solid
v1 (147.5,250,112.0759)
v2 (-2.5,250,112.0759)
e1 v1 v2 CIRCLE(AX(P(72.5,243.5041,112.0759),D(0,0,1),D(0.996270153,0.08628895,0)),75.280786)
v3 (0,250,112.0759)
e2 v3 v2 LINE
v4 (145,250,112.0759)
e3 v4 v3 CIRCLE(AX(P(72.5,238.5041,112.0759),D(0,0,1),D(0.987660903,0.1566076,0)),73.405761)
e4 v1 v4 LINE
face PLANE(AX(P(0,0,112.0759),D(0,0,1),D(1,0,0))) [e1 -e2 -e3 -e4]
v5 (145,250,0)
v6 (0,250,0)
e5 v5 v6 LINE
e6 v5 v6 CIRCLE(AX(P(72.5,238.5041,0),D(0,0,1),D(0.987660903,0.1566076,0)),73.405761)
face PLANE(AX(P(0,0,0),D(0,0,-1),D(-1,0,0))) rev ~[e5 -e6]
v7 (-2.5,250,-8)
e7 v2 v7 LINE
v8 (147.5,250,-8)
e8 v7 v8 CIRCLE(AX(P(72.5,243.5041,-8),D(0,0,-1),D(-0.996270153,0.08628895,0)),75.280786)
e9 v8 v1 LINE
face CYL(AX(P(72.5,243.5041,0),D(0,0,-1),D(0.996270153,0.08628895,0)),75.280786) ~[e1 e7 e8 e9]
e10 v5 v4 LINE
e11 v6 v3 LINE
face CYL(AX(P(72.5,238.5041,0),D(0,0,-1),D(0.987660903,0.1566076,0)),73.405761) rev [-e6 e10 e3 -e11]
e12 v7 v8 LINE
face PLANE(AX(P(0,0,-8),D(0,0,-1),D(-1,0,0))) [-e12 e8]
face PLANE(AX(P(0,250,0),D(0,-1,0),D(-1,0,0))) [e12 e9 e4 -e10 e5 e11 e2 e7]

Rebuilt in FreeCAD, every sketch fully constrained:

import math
import FreeCAD as App
import Part
import Sketcher

doc = App.newDocument("Part")
params = doc.addObject("Spreadsheet::Sheet", "Params")
for row, (alias, value) in enumerate([
    ("sketch1_width", "2.5 mm"),
    ("pad1_length", "112.0759 mm"),
    ("sketch2_width", "150 mm"),
    ("pad2_length", "8 mm"),
], start=1):
    params.set(f"A{row}", alias)
    params.set(f"B{row}", "=" + value)
    params.setAlias(f"B{row}", alias)

body = doc.addObject("PartDesign::Body", "Body")

# Sketch on XY plane
sketch1 = body.newObject("Sketcher::SketchObject", "Sketch")
sketch1.AttachmentSupport = (doc.getObject("XY_Plane"), [""])
sketch1.MapMode = "FlatFace"
sketch1.addGeometry(Part.LineSegment(App.Vector(-2.5, 250, 0), App.Vector(0, 250, 0)), False)
sketch1.addGeometry(Part.ArcOfCircle(Part.Circle(App.Vector(72.5, 238.5, 0), App.Vector(0, 0, 1), 73.4), math.radians(9), math.radians(171)), False)
sketch1.addGeometry(Part.LineSegment(App.Vector(145, 250, 0), App.Vector(147.5, 250, 0)), False)
sketch1.addGeometry(Part.ArcOfCircle(Part.Circle(App.Vector(72.5, 243.5, 0), App.Vector(0, 0, 1), 75.3), math.radians(5), math.radians(175)), False)
sketch1.addConstraint(Sketcher.Constraint("Coincident", 0, 2, 1, 2))
sketch1.addConstraint(Sketcher.Constraint("Coincident", 1, 1, 2, 1))
sketch1.addConstraint(Sketcher.Constraint("Coincident", 2, 2, 3, 1))
sketch1.addConstraint(Sketcher.Constraint("Coincident", 3, 2, 0, 1))
sketch1.addConstraint(Sketcher.Constraint("Horizontal", 0))
sketch1.addConstraint(Sketcher.Constraint("Horizontal", 2))
sketch1.addConstraint(Sketcher.Constraint("PointOnObject", 0, 2, -2))
sketch1.addConstraint(Sketcher.Constraint("Horizontal", 0, 2, 1, 1))
sketch1.addConstraint(Sketcher.Constraint("Vertical", 1, 3, 3, 3))
sketch1.addConstraint(Sketcher.Constraint("DistanceY", 1, 3, 3, 3, 5.0))
sketch1.addConstraint(Sketcher.Constraint("DistanceX", 0, 1, 0, 2, 2.5))
sketch1.addConstraint(Sketcher.Constraint("DistanceY", -1, 1, 0, 2, 250.0))
sketch1.addConstraint(Sketcher.Constraint("DistanceX", -1, 1, 1, 1, 145.0))
sketch1.addConstraint(Sketcher.Constraint("Radius", 1, 73.4058))
sketch1.setExpression("Constraints[10]", "Params.sketch1_width")
pad1 = body.newObject("PartDesign::Pad", "Pad")
pad1.Profile = sketch1
pad1.setExpression("Length", "Params.pad1_length")

# Sketch on XY plane
sketch2 = body.newObject("Sketcher::SketchObject", "Sketch001")
sketch2.AttachmentSupport = (doc.getObject("XY_Plane"), [""])
sketch2.MapMode = "FlatFace"
sketch2.addGeometry(Part.ArcOfCircle(Part.Circle(App.Vector(72, 244, 0), App.Vector(0, 0, 1), 75), math.radians(5), math.radians(175)), False)
sketch2.addGeometry(Part.LineSegment(App.Vector(148, 250, 0), App.Vector(-2, 250, 0)), False)
sketch2.addConstraint(Sketcher.Constraint("Coincident", 0, 1, 1, 1))
sketch2.addConstraint(Sketcher.Constraint("Coincident", 1, 2, 0, 2))
sketch2.addConstraint(Sketcher.Constraint("Horizontal", 1))
sketch2.addConstraint(Sketcher.Constraint("DistanceX", 1, 2, 1, 1, 150.0))
sketch2.addConstraint(Sketcher.Constraint("DistanceY", -1, 1, 0, 1, 250.0))
sketch2.addConstraint(Sketcher.Constraint("DistanceX", -1, 1, 0, 3, 72.5))
sketch2.addConstraint(Sketcher.Constraint("Radius", 0, 75.2808))
sketch2.setExpression("Constraints[3]", "Params.sketch2_width")
pad2 = body.newObject("PartDesign::Pad", "Pad001")
pad2.Profile = sketch2
pad2.setExpression("Length", "Params.pad2_length")
pad2.Reversed = True

doc.recompute()
